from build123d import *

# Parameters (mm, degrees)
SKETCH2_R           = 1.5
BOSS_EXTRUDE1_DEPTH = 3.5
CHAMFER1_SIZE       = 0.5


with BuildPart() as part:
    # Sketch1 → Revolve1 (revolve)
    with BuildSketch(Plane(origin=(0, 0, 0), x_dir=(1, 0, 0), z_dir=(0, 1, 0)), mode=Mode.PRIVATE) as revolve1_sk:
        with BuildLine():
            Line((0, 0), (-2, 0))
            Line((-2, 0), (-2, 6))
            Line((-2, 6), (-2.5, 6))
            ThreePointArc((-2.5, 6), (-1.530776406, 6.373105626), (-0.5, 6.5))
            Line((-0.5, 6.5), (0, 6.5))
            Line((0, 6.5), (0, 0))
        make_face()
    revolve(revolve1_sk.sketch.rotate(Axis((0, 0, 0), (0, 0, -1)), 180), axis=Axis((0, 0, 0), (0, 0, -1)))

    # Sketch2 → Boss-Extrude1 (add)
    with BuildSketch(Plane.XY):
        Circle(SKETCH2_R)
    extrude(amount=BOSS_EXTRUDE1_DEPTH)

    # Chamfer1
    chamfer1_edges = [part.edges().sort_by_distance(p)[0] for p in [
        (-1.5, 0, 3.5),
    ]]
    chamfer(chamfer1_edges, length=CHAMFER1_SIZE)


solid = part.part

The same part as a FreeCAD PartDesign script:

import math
import FreeCAD as App
import Part
import Sketcher
from FreeCAD import Vector
Q = App.Units.Quantity


def edges_at(feature, points):
    """Names of the edges that pass closest to the given points."""
    edges = feature.Shape.Edges
    near = lambda p: min(range(len(edges)), key=lambda i: edges[i].distToShape(Part.Vertex(*p))[0])
    return sorted({f"Edge{near(p) + 1}" for p in points})

doc = App.newDocument("Part")
body = doc.addObject("PartDesign::Body", "Body")

# Sketch on XZ plane
sketch1 = body.newObject("Sketcher::SketchObject", "Sketch")
sketch1.AttachmentSupport = (doc.getObject("XZ_Plane"), [""])
sketch1.MapMode = "FlatFace"
sketch1.addGeometry([
    Part.LineSegment(Vector(-2, 0, 0), Vector(0, 0, 0)),  # 0
    Part.LineSegment(Vector(0, 0, 0), Vector(0, -6.5, 0)),  # 1
    Part.LineSegment(Vector(0, -6.5, 0), Vector(-0.5, -6.5, 0)),  # 2
    Part.ArcOfCircle(Part.Circle(Vector(-0.5, -2.3, 0), Vector(0, 0, 1), 4.2), math.radians(-118), math.radians(-90)),  # 3
    Part.LineSegment(Vector(-2.5, -6, 0), Vector(-2, -6, 0)),  # 4
    Part.LineSegment(Vector(-2, -6, 0), Vector(-2, 0, 0)),  # 5
], False)
sketch1.addConstraint([
    Sketcher.Constraint("Coincident", 0, 2, 1, 1),
    Sketcher.Constraint("Coincident", 1, 2, 2, 1),
    Sketcher.Constraint("Tangent", 2, 2, 3, 2),
    Sketcher.Constraint("Coincident", 3, 1, 4, 1),
    Sketcher.Constraint("Coincident", 4, 2, 5, 1),
    Sketcher.Constraint("Coincident", 5, 2, 0, 1),
    Sketcher.Constraint("Horizontal", 0),
    Sketcher.Constraint("Vertical", 1),
    Sketcher.Constraint("Horizontal", 2),
    Sketcher.Constraint("Horizontal", 4),
    Sketcher.Constraint("Vertical", 5),
    Sketcher.Constraint("Coincident", 0, 2, -1, 1),
    Sketcher.Constraint("Equal", 2, 4),
    Sketcher.Constraint("DistanceX", 0, 1, 0, 2, Q("2 mm")),
    Sketcher.Constraint("DistanceY", 5, 1, 5, 2, Q("6 mm")),
    Sketcher.Constraint("Radius", 3, Q("4.25 mm")),
    Sketcher.Constraint("DistanceX", 2, 2, 2, 1, Q("0.5 mm")),
])
revolution = body.newObject("PartDesign::Revolution", "Revolution")
revolution.Profile = sketch1
revolution.ReferenceAxis = (sketch1, ["V_Axis"])
revolution.Angle = 360

# Sketch on XY plane
sketch2 = body.newObject("Sketcher::SketchObject", "Sketch001")
sketch2.AttachmentSupport = (doc.getObject("XY_Plane"), [""])
sketch2.MapMode = "FlatFace"
sketch2.addGeometry(Part.Circle(Vector(0, 0, 0), Vector(0, 0, 1), 1.5), False)
sketch2.addConstraint([
    Sketcher.Constraint("Coincident", 0, 3, -1, 1),
    Sketcher.Constraint("Diameter", 0, Q("3 mm")),
])
pad1 = body.newObject("PartDesign::Pad", "Pad")
pad1.Profile = sketch2
pad1.Length = 3.5
doc.recompute()

chamfer = body.newObject("PartDesign::Chamfer", "Chamfer")
chamfer.Base = (pad1, edges_at(pad1, [(-1.5, 0, 3.5)]))
chamfer.Size = 0.5

doc.recompute()
